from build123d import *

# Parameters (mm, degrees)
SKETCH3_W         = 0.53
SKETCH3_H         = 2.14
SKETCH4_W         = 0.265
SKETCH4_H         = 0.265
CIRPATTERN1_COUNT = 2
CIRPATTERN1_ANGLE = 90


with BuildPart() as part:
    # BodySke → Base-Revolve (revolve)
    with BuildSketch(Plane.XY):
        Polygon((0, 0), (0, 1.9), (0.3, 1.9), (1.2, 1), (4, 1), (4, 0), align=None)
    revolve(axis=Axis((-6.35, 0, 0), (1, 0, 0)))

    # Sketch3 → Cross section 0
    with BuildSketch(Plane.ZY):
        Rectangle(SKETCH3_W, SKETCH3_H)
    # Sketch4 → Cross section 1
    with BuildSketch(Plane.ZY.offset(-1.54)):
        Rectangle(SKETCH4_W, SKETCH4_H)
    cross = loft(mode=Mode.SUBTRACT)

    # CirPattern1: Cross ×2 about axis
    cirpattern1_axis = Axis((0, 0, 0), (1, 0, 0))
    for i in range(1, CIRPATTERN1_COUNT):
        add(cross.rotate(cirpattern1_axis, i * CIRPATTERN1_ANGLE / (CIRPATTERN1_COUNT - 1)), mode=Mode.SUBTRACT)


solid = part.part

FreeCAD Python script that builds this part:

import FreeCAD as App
import Part
import Sketcher
from FreeCAD import Vector
Q = App.Units.Quantity


def add_polygon(sketch, points):
    """Adds a closed chain of lines whose ends are joined by coincident constraints."""
    first, n = sketch.GeometryCount, len(points)
    for a, b in zip(points, points[1:] + points[:1]):
        sketch.addGeometry(Part.LineSegment(App.Vector(*a, 0), App.Vector(*b, 0)), False)
    for i in range(n):
        sketch.addConstraint(Sketcher.Constraint("Coincident", first + i, 2, first + (i + 1) % n, 1))

doc = App.newDocument("Part")
body = doc.addObject("PartDesign::Body", "Body")

sketch1 = doc.addObject("Sketcher::SketchObject", "Sketch")
body.addObject(sketch1)
sketch1.AttachmentSupport = (doc.XY_Plane, [""])
sketch1.MapMode = "FlatFace"
add_polygon(sketch1, [(0, 1.9), (0, 0), (4, 0), (4, 1), (1.2, 1), (0.3, 1.9)])
sketch1.addConstraint([
    Sketcher.Constraint("Vertical", 0),
    Sketcher.Constraint("Horizontal", 1),
    Sketcher.Constraint("Vertical", 2),
    Sketcher.Constraint("Horizontal", 3),
    Sketcher.Constraint("Horizontal", 5),
    Sketcher.Constraint("Coincident", 0, 2, -1, 1),
    Sketcher.Constraint("DistanceX", 1, 1, 1, 2, Q("4 mm")),
    Sketcher.Constraint("DistanceY", 2, 1, 2, 2, Q("1 mm")),
    Sketcher.Constraint("Angle", 4, Q("135 deg")),
    Sketcher.Constraint("DistanceX", 3, 2, 3, 1, Q("2.8 mm")),
    Sketcher.Constraint("DistanceX", 5, 2, 5, 1, Q("0.3 mm")),
])
revolution = doc.addObject("PartDesign::Revolution", "Revolution")
body.addObject(revolution)
revolution.Profile = sketch1
revolution.ReferenceAxis = (sketch1, ["H_Axis"])
revolution.Angle = 360

sketch2 = doc.addObject("Sketcher::SketchObject", "Sketch001")
body.addObject(sketch2)
sketch2.AttachmentSupport = (doc.YZ_Plane, [""])
sketch2.MapMode = "FlatFace"
add_polygon(sketch2, [(1.07, -0.265), (-1.07, -0.265), (-1.07, 0.265), (1.07, 0.265)])
sketch2.addConstraint([
    Sketcher.Constraint("Horizontal", 0),
    Sketcher.Constraint("Vertical", 1),
    Sketcher.Constraint("Horizontal", 2),
    Sketcher.Constraint("Vertical", 3),
    Sketcher.Constraint("Symmetric", 0, 2, 2, 2, -1, 1),
    Sketcher.Constraint("DistanceX", 0, 2, 0, 1, Q("2.14 mm")),
    Sketcher.Constraint("DistanceY", 1, 1, 1, 2, Q("0.53 mm")),
])

sketch3 = doc.addObject("Sketcher::SketchObject", "Sketch002")
body.addObject(sketch3)
sketch3.AttachmentSupport = (doc.YZ_Plane, [""])
sketch3.MapMode = "FlatFace"
sketch3.AttachmentOffset = App.Placement(Vector(0, 0, 1.54), App.Rotation())
add_polygon(sketch3, [(0.1325, -0.1325), (-0.1325, -0.1325), (-0.1325, 0.1325), (0.1325, 0.1325)])
sketch3.addConstraint([
    Sketcher.Constraint("Horizontal", 0),
    Sketcher.Constraint("Vertical", 1),
    Sketcher.Constraint("Horizontal", 2),
    Sketcher.Constraint("Vertical", 3),
    Sketcher.Constraint("Symmetric", 0, 2, 2, 2, -1, 1),
    Sketcher.Constraint("Equal", 2, 1),
    Sketcher.Constraint("DistanceX", 0, 2, 0, 1, Q("0.265 mm")),
])

subtractiveloft = doc.addObject("PartDesign::SubtractiveLoft", "SubtractiveLoft")
body.addObject(subtractiveloft)
subtractiveloft.Profile = sketch2
subtractiveloft.Sections = [sketch3]
doc.recompute()

polarpattern = doc.addObject("PartDesign::PolarPattern", "PolarPattern")
body.addObject(polarpattern)
polarpattern.Originals = [subtractiveloft]
polarpattern.Axis = (doc.X_Axis, [""])
polarpattern.Angle = 90
polarpattern.Occurrences = 2
body.Tip = polarpattern

doc.recompute()
